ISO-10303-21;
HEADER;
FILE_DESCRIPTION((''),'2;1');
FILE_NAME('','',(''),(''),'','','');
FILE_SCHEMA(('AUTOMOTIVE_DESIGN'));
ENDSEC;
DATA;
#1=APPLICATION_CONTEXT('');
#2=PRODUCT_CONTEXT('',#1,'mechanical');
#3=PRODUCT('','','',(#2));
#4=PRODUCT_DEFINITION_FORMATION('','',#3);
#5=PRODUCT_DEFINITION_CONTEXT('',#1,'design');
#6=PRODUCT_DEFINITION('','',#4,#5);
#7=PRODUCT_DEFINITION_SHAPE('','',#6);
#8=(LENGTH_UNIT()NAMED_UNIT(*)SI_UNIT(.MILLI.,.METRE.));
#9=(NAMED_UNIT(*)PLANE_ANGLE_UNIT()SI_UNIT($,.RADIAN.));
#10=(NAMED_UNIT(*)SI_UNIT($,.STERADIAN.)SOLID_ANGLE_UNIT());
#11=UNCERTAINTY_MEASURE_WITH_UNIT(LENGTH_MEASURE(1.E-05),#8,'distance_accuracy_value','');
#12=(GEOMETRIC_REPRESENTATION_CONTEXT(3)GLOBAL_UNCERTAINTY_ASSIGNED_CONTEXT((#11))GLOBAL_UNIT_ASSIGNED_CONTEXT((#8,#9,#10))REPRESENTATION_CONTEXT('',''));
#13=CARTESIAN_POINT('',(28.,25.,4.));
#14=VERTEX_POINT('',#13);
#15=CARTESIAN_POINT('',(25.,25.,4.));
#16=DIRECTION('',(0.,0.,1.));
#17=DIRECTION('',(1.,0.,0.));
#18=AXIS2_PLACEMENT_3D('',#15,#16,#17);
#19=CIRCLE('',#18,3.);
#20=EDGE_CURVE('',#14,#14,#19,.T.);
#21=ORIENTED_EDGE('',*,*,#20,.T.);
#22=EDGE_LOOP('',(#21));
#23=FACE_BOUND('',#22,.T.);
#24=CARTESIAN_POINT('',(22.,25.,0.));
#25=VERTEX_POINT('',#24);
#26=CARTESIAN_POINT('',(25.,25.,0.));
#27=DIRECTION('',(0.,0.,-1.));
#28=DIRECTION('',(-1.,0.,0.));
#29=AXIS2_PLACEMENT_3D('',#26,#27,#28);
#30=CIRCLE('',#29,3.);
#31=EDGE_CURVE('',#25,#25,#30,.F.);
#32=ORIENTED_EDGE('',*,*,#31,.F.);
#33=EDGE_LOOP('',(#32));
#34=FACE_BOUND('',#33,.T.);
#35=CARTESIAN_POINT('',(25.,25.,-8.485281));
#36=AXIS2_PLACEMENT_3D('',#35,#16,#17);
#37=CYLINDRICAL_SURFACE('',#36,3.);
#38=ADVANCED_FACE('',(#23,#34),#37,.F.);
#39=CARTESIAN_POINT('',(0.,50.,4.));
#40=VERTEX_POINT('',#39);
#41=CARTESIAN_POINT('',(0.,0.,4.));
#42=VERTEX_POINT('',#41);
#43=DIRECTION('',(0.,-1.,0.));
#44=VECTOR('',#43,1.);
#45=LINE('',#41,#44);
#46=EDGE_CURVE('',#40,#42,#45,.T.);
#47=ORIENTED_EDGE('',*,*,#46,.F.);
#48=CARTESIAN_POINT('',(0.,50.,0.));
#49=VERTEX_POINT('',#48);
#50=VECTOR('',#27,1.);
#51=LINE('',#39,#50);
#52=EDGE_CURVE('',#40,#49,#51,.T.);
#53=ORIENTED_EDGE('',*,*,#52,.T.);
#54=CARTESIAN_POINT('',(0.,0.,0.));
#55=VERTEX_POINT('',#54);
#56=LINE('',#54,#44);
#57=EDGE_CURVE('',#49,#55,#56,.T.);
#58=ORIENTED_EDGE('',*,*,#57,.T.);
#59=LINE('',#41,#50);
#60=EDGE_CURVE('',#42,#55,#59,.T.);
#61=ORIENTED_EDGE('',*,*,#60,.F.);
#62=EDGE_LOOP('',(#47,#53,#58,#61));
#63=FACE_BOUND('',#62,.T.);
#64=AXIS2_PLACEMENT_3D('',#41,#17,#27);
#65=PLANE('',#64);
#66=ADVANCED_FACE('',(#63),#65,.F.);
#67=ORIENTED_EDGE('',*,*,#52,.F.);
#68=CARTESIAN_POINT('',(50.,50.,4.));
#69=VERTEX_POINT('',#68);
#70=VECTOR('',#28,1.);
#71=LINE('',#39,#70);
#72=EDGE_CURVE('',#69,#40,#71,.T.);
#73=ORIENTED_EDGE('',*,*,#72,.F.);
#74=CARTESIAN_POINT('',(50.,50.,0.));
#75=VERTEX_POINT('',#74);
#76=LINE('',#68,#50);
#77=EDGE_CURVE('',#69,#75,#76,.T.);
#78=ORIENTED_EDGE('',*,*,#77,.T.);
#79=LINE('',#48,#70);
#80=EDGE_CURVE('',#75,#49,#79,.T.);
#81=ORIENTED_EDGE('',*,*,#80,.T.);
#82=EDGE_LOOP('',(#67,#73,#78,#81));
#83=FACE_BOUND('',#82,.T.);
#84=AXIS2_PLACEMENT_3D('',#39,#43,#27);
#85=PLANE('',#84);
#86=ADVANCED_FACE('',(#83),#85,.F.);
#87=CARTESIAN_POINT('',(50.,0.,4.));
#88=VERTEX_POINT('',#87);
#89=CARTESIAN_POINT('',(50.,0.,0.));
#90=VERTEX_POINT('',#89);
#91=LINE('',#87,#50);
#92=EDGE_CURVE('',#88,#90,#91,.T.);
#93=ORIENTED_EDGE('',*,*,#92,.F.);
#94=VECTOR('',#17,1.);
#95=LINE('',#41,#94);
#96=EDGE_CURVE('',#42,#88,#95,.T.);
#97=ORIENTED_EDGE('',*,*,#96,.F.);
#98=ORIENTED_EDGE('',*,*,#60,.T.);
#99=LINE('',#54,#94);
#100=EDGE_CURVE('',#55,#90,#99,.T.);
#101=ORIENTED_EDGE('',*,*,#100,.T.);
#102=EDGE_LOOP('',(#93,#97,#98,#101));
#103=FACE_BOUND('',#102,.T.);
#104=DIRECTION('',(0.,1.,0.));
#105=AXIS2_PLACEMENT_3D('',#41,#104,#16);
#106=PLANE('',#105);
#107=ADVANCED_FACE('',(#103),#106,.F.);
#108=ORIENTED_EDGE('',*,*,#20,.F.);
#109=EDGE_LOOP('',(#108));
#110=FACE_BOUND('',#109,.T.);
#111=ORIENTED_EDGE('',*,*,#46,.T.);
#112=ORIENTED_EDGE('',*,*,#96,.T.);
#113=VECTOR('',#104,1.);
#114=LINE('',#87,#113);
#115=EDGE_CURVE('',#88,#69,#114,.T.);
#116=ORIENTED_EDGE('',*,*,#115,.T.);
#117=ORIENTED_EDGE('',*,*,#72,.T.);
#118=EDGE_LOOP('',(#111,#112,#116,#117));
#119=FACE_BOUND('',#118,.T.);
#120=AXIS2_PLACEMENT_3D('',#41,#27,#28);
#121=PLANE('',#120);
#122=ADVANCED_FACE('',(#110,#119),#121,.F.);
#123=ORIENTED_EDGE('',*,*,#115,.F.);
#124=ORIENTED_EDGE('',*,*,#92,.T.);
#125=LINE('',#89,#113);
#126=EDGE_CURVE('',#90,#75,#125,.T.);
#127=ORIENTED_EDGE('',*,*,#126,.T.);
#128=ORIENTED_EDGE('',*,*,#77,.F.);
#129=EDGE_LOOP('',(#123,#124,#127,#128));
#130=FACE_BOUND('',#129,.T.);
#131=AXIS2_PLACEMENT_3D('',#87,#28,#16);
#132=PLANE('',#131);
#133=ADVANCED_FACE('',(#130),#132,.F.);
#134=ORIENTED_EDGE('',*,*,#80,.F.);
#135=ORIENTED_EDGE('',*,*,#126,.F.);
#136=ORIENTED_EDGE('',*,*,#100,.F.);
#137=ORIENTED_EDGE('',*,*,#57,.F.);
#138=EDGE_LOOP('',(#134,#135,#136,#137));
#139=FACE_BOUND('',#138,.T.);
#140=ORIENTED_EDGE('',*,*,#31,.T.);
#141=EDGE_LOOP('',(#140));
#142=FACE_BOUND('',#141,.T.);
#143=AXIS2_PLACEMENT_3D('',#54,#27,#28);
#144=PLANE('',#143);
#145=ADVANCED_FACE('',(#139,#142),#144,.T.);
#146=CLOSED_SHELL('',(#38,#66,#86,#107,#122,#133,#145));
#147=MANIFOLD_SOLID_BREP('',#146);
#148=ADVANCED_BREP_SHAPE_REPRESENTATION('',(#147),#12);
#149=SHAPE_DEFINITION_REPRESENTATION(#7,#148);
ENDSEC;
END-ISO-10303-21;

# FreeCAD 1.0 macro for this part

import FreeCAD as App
import Part
import Sketcher


def add_polygon(sketch, points):
    """Adds a closed chain of lines whose ends are joined by coincident constraints."""
    first, n = sketch.GeometryCount, len(points)
    for a, b in zip(points, points[1:] + points[:1]):
        sketch.addGeometry(Part.LineSegment(App.Vector(*a, 0), App.Vector(*b, 0)), False)
    for i in range(n):
        sketch.addConstraint(Sketcher.Constraint("Coincident", first + i, 2, first + (i + 1) % n, 1))

doc = App.newDocument("Part")
body = doc.addObject("PartDesign::Body", "Body")

sketch1 = doc.addObject("Sketcher::SketchObject", "Sketch")
body.addObject(sketch1)
sketch1.AttachmentSupport = (doc.XY_Plane, [""])
sketch1.MapMode = "FlatFace"
add_polygon(sketch1, [(0, 50), (0, 0), (50, 0), (50, 50)])
sketch1.addConstraint([
    Sketcher.Constraint("Vertical", 0),
    Sketcher.Constraint("Horizontal", 1),
    Sketcher.Constraint("Vertical", 2),
    Sketcher.Constraint("Horizontal", 3),
    Sketcher.Constraint("Coincident", 0, 2, -1, 1),
    Sketcher.Constraint("Equal", 3, 0),
    Sketcher.Constraint("DistanceX", 1, 1, 1, 2, 50.0),
])
pad1 = doc.addObject("PartDesign::Pad", "Pad")
body.addObject(pad1)
pad1.Profile = sketch1
pad1.Length = 4

sketch2 = doc.addObject("Sketcher::SketchObject", "Sketch001")
body.addObject(sketch2)
sketch2.AttachmentSupport = (doc.XY_Plane, [""])
sketch2.MapMode = "FlatFace"
sketch2.AttachmentOffset = App.Placement(App.Vector(0, 0, 4), App.Rotation())
sketch2.addGeometry(Part.Circle(App.Vector(25, 25, 0), App.Vector(0, 0, 1), 3), False)
sketch2.addConstraint([
    Sketcher.Constraint("Diameter", 0, 6.0),
    Sketcher.Constraint("DistanceX", -1, 1, 0, 3, 25.0),
    Sketcher.Constraint("DistanceY", -1, 1, 0, 3, 25.0),
])
pocket1 = doc.addObject("PartDesign::Pocket", "Pocket")
body.addObject(pocket1)
pocket1.Profile = sketch2
pocket1.Length = 4

doc.recompute()
